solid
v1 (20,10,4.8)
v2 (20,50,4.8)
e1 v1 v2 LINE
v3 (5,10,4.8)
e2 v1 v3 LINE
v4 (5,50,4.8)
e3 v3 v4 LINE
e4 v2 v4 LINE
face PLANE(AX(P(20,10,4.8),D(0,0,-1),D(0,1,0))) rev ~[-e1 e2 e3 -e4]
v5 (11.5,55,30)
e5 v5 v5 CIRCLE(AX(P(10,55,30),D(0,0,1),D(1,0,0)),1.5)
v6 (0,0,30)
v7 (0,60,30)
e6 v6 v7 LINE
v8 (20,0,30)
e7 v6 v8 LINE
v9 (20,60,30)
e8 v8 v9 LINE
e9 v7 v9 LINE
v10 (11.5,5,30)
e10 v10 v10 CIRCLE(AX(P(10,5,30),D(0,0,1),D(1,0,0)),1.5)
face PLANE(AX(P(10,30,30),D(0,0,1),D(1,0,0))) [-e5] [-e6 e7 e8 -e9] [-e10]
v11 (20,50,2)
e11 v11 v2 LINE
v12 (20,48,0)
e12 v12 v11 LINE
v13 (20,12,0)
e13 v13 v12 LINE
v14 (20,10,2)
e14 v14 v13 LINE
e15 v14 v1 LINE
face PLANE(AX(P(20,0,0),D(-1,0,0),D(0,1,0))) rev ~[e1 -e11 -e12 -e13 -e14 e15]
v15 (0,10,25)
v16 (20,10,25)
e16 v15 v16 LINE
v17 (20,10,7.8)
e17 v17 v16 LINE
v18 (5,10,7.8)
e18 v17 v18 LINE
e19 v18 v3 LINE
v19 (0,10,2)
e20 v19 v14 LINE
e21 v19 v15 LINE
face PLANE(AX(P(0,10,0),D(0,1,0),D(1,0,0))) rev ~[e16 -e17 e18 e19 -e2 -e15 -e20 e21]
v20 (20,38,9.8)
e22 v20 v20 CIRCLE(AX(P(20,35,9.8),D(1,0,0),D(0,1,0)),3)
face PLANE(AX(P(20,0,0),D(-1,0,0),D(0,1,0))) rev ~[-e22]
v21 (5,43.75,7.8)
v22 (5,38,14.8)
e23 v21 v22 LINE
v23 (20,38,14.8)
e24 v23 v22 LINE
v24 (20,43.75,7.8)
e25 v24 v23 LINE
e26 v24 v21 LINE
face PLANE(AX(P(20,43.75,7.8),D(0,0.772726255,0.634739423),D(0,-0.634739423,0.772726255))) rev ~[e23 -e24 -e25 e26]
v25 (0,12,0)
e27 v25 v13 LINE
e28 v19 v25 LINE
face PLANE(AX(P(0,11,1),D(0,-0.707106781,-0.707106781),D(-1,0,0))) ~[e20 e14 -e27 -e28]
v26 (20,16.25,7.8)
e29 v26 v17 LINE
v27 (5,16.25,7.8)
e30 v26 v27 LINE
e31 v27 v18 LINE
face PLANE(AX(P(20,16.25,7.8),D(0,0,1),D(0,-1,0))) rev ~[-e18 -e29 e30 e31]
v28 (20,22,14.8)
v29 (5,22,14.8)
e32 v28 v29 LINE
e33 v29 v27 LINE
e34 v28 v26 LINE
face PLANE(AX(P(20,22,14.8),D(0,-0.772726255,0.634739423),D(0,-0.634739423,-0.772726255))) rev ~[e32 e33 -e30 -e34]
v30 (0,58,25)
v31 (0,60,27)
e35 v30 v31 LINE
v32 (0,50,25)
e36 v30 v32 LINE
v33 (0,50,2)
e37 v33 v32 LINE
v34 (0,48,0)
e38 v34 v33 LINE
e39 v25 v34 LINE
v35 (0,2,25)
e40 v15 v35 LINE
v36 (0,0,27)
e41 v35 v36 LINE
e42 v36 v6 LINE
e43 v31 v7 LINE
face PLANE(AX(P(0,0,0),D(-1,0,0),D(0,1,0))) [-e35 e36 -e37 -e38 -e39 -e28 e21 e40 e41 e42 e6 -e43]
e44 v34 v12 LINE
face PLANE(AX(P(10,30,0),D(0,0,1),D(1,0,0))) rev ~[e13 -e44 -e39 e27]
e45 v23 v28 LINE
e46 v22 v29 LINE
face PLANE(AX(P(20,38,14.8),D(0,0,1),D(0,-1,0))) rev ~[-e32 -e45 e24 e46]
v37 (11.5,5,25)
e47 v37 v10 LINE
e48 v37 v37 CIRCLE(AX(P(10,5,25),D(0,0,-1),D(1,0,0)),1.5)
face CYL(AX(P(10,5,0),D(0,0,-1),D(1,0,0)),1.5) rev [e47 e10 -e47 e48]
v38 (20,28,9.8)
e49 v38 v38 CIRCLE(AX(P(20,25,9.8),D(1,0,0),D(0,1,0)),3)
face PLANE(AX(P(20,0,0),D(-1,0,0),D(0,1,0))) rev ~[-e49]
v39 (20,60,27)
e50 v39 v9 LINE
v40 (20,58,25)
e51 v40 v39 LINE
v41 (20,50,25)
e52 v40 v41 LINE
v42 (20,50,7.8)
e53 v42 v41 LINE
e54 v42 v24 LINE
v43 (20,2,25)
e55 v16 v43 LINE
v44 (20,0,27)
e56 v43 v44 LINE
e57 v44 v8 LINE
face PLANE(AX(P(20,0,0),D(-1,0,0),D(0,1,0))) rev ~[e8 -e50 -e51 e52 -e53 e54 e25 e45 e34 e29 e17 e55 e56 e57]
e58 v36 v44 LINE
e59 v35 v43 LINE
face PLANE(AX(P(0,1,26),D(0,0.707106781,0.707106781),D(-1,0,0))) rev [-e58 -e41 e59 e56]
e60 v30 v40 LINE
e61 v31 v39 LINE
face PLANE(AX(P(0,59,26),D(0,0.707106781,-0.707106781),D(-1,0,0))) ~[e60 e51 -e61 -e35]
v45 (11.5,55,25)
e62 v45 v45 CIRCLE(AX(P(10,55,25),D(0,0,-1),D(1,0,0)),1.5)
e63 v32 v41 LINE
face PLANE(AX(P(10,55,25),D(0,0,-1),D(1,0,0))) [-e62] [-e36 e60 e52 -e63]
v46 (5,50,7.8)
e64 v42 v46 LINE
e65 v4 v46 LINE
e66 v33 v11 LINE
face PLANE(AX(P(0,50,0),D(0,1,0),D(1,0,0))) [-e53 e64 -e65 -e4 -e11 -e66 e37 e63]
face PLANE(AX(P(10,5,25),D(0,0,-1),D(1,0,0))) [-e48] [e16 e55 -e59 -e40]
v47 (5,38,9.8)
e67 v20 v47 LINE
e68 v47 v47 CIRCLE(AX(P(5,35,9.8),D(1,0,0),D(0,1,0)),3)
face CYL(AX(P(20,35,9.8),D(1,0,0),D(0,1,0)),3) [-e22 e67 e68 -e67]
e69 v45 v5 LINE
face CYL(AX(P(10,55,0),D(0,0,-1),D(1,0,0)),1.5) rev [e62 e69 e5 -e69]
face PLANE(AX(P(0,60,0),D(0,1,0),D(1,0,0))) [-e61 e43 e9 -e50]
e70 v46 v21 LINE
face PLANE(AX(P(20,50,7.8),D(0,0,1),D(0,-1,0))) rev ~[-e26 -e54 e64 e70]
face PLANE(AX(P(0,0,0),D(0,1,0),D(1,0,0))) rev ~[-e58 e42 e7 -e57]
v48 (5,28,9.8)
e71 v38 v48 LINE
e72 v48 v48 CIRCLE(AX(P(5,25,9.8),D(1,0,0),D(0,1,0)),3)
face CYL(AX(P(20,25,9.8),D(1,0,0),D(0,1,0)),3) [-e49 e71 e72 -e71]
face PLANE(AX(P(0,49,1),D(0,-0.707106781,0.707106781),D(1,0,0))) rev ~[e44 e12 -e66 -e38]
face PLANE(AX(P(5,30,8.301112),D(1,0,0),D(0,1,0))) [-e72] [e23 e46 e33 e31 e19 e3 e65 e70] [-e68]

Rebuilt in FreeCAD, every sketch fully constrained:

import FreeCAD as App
import Part
import Sketcher
Q = App.Units.Quantity


def edges_at(feature, points):
    """Names of the edges that pass closest to the given points."""
    edges = feature.Shape.Edges
    near = lambda p: min(range(len(edges)), key=lambda i: edges[i].distToShape(Part.Vertex(*p))[0])
    return sorted({f"Edge{near(p) + 1}" for p in points})

doc = App.newDocument("Part")
params = doc.addObject("Spreadsheet::Sheet", "Params")
for row, (alias, value) in enumerate([
    ("sketch1_diameter", "3 mm"),
    ("sketch1_width", "20 mm"),
    ("sketch1_height", "60 mm"),
    ("pad1_length", "30 mm"),
    ("sketch2_width", "20 mm"),
    ("sketch2_height", "10 mm"),
    ("pocket1_length", "25 mm"),
    ("sketch3_diameter", "6 mm"),
    ("sketch3_width", "40 mm"),
    ("sketch3_width2", "16 mm"),
    ("sketch3_height", "3 mm"),
    ("sketch3_width3", "6.25 mm"),
    ("pocket2_length", "15 mm"),
    ("chamfer_size", "2 mm"),
    ("chamfer2_size", "2 mm"),
], start=1):
    params.set(f"A{row}", alias)
    params.set(f"B{row}", "=" + value)
    params.setAlias(f"B{row}", alias)

body = doc.addObject("PartDesign::Body", "Body")

# Sketch on XY plane
sketch1 = body.newObject("Sketcher::SketchObject", "Sketch")
sketch1.AttachmentSupport = (doc.getObject("XY_Plane"), [""])
sketch1.MapMode = "FlatFace"
sketch1.addGeometry([
    Part.LineSegment(App.Vector(0, 60, 0), App.Vector(0, 0, 0)),  # 0
    Part.LineSegment(App.Vector(0, 0, 0), App.Vector(20, 0, 0)),  # 1
    Part.LineSegment(App.Vector(20, 0, 0), App.Vector(20, 60, 0)),  # 2
    Part.LineSegment(App.Vector(20, 60, 0), App.Vector(0, 60, 0)),  # 3
    Part.Circle(App.Vector(10, 5, 0), App.Vector(0, 0, 1), 1.5),  # 4
    Part.Circle(App.Vector(10, 55, 0), App.Vector(0, 0, 1), 1.5),  # 5
], False)
sketch1.addConstraint([
    Sketcher.Constraint("Coincident", 0, 2, 1, 1),
    Sketcher.Constraint("Coincident", 1, 2, 2, 1),
    Sketcher.Constraint("Coincident", 2, 2, 3, 1),
    Sketcher.Constraint("Coincident", 3, 2, 0, 1),
    Sketcher.Constraint("Vertical", 0),
    Sketcher.Constraint("Horizontal", 1),
    Sketcher.Constraint("Vertical", 2),
    Sketcher.Constraint("Horizontal", 3),
    Sketcher.Constraint("Coincident", 0, 2, -1, 1),
    Sketcher.Constraint("Equal", 4, 5),
    Sketcher.Constraint("Vertical", 4, 3, 5, 3),
    Sketcher.Constraint("Diameter", 4, Q("3 mm")),
    Sketcher.Constraint("DistanceX", 1, 1, 1, 2, Q("20 mm")),
    Sketcher.Constraint("DistanceY", 0, 2, 0, 1, Q("60 mm")),
    Sketcher.Constraint("DistanceX", -1, 1, 4, 3, Q("10 mm")),
    Sketcher.Constraint("DistanceY", -1, 1, 4, 3, Q("5 mm")),
    Sketcher.Constraint("DistanceY", -1, 1, 5, 3, Q("55 mm")),
])
sketch1.setExpression("Constraints[11]", "Params.sketch1_diameter")
sketch1.setExpression("Constraints[12]", "Params.sketch1_width")
sketch1.setExpression("Constraints[13]", "Params.sketch1_height")
pad1 = body.newObject("PartDesign::Pad", "Pad")
pad1.Profile = sketch1
pad1.setExpression("Length", "Params.pad1_length")

# Sketch on XY plane
sketch2 = body.newObject("Sketcher::SketchObject", "Sketch001")
sketch2.AttachmentSupport = (doc.getObject("XY_Plane"), [""])
sketch2.MapMode = "FlatFace"
sketch2.addGeometry([
    Part.LineSegment(App.Vector(0, 0, 0), App.Vector(0, 10, 0)),  # 0
    Part.LineSegment(App.Vector(0, 10, 0), App.Vector(20, 10, 0)),  # 1
    Part.LineSegment(App.Vector(20, 10, 0), App.Vector(20, 0, 0)),  # 2
    Part.LineSegment(App.Vector(20, 0, 0), App.Vector(0, 0, 0)),  # 3
    Part.LineSegment(App.Vector(0, 50, 0), App.Vector(0, 60, 0)),  # 4
    Part.LineSegment(App.Vector(0, 60, 0), App.Vector(20, 60, 0)),  # 5
    Part.LineSegment(App.Vector(20, 60, 0), App.Vector(20, 50, 0)),  # 6
    Part.LineSegment(App.Vector(20, 50, 0), App.Vector(0, 50, 0)),  # 7
], False)
sketch2.addConstraint([
    Sketcher.Constraint("Coincident", 0, 2, 1, 1),
    Sketcher.Constraint("Coincident", 1, 2, 2, 1),
    Sketcher.Constraint("Coincident", 2, 2, 3, 1),
    Sketcher.Constraint("Coincident", 3, 2, 0, 1),
    Sketcher.Constraint("Coincident", 4, 2, 5, 1),
    Sketcher.Constraint("Coincident", 5, 2, 6, 1),
    Sketcher.Constraint("Coincident", 6, 2, 7, 1),
    Sketcher.Constraint("Coincident", 7, 2, 4, 1),
    Sketcher.Constraint("Vertical", 0),
    Sketcher.Constraint("Horizontal", 1),
    Sketcher.Constraint("Vertical", 2),
    Sketcher.Constraint("Horizontal", 3),
    Sketcher.Constraint("Vertical", 4),
    Sketcher.Constraint("Horizontal", 5),
    Sketcher.Constraint("Vertical", 6),
    Sketcher.Constraint("Horizontal", 7),
    Sketcher.Constraint("Coincident", 3, 2, -1, 1),
    Sketcher.Constraint("PointOnObject", 4, 2, -2),
    Sketcher.Constraint("Vertical", 2, 2, 5, 2),
    Sketcher.Constraint("Equal", 2, 4),
    Sketcher.Constraint("DistanceX", 1, 1, 1, 2, Q("20 mm")),
    Sketcher.Constraint("DistanceY", 0, 1, 0, 2, Q("10 mm")),
    Sketcher.Constraint("DistanceY", -1, 1, 4, 2, Q("60 mm")),
])
sketch2.setExpression("Constraints[20]", "Params.sketch2_width")
sketch2.setExpression("Constraints[21]", "Params.sketch2_height")
pocket1 = body.newObject("PartDesign::Pocket", "Pocket")
pocket1.Profile = sketch2
pocket1.setExpression("Length", "Params.pocket1_length")
pocket1.Reversed = True

# Sketch on YZ plane
sketch3 = body.newObject("Sketcher::SketchObject", "Sketch002")
sketch3.AttachmentSupport = (doc.getObject("YZ_Plane"), [""])
sketch3.MapMode = "FlatFace"
sketch3.AttachmentOffset = App.Placement(App.Vector(0, 0, 20), App.Rotation())
sketch3.addGeometry([
    Part.LineSegment(App.Vector(10, 7.8, 0), App.Vector(10, 4.8, 0)),  # 0
    Part.LineSegment(App.Vector(10, 4.8, 0), App.Vector(50, 4.8, 0)),  # 1
    Part.LineSegment(App.Vector(50, 4.8, 0), App.Vector(50, 7.8, 0)),  # 2
    Part.LineSegment(App.Vector(50, 7.8, 0), App.Vector(43.75, 7.8, 0)),  # 3
    Part.LineSegment(App.Vector(43.75, 7.8, 0), App.Vector(38, 14.8, 0)),  # 4
    Part.LineSegment(App.Vector(38, 14.8, 0), App.Vector(22, 14.8, 0)),  # 5
    Part.LineSegment(App.Vector(22, 14.8, 0), App.Vector(16.25, 7.8, 0)),  # 6
    Part.LineSegment(App.Vector(16.25, 7.8, 0), App.Vector(10, 7.8, 0)),  # 7
    Part.Circle(App.Vector(25, 9.8, 0), App.Vector(0, 0, 1), 3),  # 8
    Part.Circle(App.Vector(35, 9.8, 0), App.Vector(0, 0, 1), 3),  # 9
], False)
sketch3.addConstraint([
    Sketcher.Constraint("Coincident", 0, 2, 1, 1),
    Sketcher.Constraint("Coincident", 1, 2, 2, 1),
    Sketcher.Constraint("Coincident", 2, 2, 3, 1),
    Sketcher.Constraint("Coincident", 3, 2, 4, 1),
    Sketcher.Constraint("Coincident", 4, 2, 5, 1),
    Sketcher.Constraint("Coincident", 5, 2, 6, 1),
    Sketcher.Constraint("Coincident", 6, 2, 7, 1),
    Sketcher.Constraint("Coincident", 7, 2, 0, 1),
    Sketcher.Constraint("Vertical", 0),
    Sketcher.Constraint("Horizontal", 1),
    Sketcher.Constraint("Vertical", 2),
    Sketcher.Constraint("Horizontal", 3),
    Sketcher.Constraint("Horizontal", 5),
    Sketcher.Constraint("Horizontal", 7),
    Sketcher.Constraint("Equal", 8, 9),
    Sketcher.Constraint("Horizontal", 8, 3, 9, 3),
    Sketcher.Constraint("Horizontal", 3, 2, 6, 2),
    Sketcher.Constraint("Equal", 3, 7),
    Sketcher.Constraint("Equal", 4, 6),
    Sketcher.Constraint("Diameter", 8, Q("6 mm")),
    Sketcher.Constraint("DistanceX", 1, 1, 1, 2, Q("40 mm")),
    Sketcher.Constraint("DistanceX", 5, 2, 5, 1, Q("16 mm")),
    Sketcher.Constraint("DistanceY", 0, 2, 0, 1, Q("3 mm")),
    Sketcher.Constraint("DistanceX", -1, 1, 8, 3, Q("25 mm")),
    Sketcher.Constraint("DistanceX", -1, 1, 9, 3, Q("35 mm")),
    Sketcher.Constraint("DistanceX", -1, 1, 0, 2, Q("10 mm")),
    Sketcher.Constraint("DistanceY", 0, 2, 8, 3, Q("5 mm")),
    Sketcher.Constraint("DistanceY", 9, 3, 4, 2, Q("5 mm")),
    Sketcher.Constraint("DistanceX", 3, 2, 3, 1, Q("6.25 mm")),
    Sketcher.Constraint("DistanceY", -1, 1, 8, 3, Q("9.8 mm")),
])
sketch3.setExpression("Constraints[19]", "Params.sketch3_diameter")
sketch3.setExpression("Constraints[20]", "Params.sketch3_width")
sketch3.setExpression("Constraints[21]", "Params.sketch3_width2")
sketch3.setExpression("Constraints[22]", "Params.sketch3_height")
sketch3.setExpression("Constraints[28]", "Params.sketch3_width3")
pocket2 = body.newObject("PartDesign::Pocket", "Pocket001")
pocket2.Profile = sketch3
pocket2.setExpression("Length", "Params.pocket2_length")
doc.recompute()

chamfer = body.newObject("PartDesign::Chamfer", "Chamfer")
chamfer.Base = (pocket2, edges_at(pocket2, [(10, 0, 25), (10, 60, 25)]))
chamfer.setExpression("Size", "Params.chamfer_size")
doc.recompute()

chamfer2 = body.newObject("PartDesign::Chamfer", "Chamfer001")
chamfer2.Base = (chamfer, edges_at(chamfer, [(10, 10, 0), (10, 50, 0)]))
chamfer2.setExpression("Size", "Params.chamfer2_size")

doc.recompute()
